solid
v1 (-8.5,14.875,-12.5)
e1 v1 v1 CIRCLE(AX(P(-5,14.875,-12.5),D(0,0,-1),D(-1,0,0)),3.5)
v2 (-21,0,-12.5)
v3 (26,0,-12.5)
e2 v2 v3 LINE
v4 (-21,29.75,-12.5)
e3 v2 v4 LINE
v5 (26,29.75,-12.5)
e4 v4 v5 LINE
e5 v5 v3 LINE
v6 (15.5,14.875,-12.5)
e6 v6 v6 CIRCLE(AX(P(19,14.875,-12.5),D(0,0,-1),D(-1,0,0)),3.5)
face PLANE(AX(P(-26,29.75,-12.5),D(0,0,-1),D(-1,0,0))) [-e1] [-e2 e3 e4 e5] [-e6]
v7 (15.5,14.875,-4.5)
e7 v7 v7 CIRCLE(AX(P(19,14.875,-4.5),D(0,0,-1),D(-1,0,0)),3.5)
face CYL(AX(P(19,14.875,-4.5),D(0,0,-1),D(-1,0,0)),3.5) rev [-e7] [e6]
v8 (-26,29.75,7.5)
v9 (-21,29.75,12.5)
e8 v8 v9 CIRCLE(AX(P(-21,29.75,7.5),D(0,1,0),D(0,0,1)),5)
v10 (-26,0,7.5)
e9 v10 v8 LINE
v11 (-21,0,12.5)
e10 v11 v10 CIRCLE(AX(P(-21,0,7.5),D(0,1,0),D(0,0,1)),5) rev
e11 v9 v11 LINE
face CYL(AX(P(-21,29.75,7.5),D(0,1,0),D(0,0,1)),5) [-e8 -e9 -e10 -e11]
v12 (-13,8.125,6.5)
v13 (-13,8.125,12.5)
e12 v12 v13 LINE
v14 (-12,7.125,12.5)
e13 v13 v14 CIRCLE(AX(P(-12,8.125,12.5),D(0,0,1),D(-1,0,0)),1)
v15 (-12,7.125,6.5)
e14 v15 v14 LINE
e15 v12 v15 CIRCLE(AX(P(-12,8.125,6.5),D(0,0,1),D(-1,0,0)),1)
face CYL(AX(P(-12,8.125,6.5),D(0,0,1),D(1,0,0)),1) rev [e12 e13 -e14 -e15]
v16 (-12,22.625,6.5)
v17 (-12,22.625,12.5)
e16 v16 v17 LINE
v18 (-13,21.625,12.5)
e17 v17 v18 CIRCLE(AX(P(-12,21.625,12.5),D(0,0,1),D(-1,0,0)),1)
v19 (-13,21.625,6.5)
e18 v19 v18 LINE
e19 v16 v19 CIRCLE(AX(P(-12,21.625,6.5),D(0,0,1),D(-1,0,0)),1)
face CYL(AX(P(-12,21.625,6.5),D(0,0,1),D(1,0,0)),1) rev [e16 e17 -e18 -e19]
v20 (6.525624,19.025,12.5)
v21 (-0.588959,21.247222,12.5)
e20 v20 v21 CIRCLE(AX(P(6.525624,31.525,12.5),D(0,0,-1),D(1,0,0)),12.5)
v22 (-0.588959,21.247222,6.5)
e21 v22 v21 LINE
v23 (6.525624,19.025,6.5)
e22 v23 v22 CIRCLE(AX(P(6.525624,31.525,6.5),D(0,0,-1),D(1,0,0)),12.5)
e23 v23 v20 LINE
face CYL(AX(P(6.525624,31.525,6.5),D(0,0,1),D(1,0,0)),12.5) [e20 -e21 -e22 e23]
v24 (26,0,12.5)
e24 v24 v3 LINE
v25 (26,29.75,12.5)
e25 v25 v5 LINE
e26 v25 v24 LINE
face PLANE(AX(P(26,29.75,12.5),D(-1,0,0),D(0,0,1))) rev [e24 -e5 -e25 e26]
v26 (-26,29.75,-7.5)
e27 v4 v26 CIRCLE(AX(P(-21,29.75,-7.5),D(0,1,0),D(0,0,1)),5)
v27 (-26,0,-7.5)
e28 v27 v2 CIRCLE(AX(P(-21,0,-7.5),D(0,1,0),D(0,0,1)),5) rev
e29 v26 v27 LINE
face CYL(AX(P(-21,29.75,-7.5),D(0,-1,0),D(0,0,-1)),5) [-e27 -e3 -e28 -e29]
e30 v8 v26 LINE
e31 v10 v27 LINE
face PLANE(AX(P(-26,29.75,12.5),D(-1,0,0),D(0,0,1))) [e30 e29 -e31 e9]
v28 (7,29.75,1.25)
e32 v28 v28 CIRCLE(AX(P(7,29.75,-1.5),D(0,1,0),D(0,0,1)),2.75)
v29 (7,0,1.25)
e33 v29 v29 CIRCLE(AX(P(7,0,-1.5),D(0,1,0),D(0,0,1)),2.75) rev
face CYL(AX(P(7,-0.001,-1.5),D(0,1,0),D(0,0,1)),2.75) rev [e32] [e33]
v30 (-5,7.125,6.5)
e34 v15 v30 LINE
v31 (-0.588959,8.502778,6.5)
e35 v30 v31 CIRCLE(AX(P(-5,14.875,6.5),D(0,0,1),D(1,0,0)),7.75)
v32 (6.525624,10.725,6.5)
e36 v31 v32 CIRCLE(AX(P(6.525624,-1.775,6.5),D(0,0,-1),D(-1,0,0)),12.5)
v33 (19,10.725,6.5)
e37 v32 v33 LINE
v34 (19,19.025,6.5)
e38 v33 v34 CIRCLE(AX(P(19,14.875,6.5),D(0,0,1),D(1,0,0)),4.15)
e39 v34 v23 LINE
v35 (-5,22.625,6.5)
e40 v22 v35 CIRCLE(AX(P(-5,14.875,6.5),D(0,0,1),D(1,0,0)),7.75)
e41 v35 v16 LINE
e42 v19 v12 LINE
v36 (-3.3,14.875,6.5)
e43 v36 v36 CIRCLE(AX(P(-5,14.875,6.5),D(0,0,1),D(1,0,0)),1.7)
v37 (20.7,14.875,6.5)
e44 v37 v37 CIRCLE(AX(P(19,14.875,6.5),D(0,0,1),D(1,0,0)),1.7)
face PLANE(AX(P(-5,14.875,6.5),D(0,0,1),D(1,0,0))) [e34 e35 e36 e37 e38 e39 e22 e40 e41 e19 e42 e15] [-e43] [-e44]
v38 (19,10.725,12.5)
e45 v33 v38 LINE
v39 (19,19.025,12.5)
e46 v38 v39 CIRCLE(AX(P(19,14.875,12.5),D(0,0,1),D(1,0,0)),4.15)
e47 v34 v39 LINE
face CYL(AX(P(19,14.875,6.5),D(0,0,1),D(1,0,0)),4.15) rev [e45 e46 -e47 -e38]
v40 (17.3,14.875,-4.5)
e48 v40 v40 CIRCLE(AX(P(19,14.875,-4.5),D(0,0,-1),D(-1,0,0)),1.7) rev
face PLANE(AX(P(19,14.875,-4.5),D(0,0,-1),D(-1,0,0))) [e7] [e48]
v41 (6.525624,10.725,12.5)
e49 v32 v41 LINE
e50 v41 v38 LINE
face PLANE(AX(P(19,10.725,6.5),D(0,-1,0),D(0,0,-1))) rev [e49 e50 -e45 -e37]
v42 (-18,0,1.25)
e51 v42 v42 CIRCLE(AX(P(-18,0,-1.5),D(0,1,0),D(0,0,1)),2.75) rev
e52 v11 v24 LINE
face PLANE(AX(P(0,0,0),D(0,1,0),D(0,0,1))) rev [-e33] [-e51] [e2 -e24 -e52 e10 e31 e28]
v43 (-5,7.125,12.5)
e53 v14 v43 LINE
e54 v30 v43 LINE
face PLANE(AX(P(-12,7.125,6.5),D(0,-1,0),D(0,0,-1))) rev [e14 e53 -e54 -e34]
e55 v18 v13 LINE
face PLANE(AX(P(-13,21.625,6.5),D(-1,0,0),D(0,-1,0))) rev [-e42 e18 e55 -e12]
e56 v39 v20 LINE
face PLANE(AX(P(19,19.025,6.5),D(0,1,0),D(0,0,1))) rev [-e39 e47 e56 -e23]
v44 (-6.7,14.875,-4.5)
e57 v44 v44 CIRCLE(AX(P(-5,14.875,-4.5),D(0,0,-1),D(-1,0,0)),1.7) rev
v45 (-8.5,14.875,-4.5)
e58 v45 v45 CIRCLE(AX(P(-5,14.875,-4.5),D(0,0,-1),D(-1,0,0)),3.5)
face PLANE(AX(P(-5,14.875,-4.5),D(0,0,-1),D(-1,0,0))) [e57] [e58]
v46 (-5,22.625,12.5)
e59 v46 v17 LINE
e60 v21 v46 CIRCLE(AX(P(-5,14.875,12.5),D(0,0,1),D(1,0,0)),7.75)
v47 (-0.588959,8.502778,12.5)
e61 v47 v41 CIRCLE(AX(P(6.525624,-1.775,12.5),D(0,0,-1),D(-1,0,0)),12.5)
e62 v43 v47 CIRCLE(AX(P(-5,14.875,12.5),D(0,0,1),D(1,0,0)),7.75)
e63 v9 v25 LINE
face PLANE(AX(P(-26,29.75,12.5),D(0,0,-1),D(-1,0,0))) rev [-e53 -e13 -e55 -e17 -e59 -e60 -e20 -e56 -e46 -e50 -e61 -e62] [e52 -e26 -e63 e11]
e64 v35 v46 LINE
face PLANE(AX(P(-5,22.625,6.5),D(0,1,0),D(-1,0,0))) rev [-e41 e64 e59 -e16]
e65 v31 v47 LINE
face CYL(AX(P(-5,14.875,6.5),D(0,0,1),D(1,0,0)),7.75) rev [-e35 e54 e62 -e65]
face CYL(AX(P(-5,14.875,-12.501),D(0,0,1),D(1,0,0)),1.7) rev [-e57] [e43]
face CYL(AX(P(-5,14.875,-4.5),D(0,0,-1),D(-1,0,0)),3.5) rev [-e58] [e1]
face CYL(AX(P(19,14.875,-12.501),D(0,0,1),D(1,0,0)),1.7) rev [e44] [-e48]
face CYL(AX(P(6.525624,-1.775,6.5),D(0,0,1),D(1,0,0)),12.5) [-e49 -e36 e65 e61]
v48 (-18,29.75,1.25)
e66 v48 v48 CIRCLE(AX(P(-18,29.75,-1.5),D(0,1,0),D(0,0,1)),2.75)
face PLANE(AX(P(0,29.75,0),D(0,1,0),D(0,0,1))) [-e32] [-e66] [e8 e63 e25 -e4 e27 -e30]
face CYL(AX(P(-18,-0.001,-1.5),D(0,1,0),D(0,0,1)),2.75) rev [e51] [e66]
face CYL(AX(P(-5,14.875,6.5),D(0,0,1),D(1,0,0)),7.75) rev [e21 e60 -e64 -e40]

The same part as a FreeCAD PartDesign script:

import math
import FreeCAD as App
import Part
import Sketcher
Q = App.Units.Quantity


def edges_at(feature, points):
    """Names of the edges that pass closest to the given points."""
    edges = feature.Shape.Edges
    near = lambda p: min(range(len(edges)), key=lambda i: edges[i].distToShape(Part.Vertex(*p))[0])
    return sorted({f"Edge{near(p) + 1}" for p in points})


def add_polygon(sketch, points):
    """Adds a closed chain of lines whose ends are joined by coincident constraints."""
    first, n = sketch.GeometryCount, len(points)
    for a, b in zip(points, points[1:] + points[:1]):
        sketch.addGeometry(Part.LineSegment(App.Vector(*a, 0), App.Vector(*b, 0)), False)
    for i in range(n):
        sketch.addConstraint(Sketcher.Constraint("Coincident", first + i, 2, first + (i + 1) % n, 1))

doc = App.newDocument("Part")
params = doc.addObject("Spreadsheet::Sheet", "Params")
for row, (alias, value) in enumerate([
    ("sketch1_width", "52 mm"),
    ("sketch1_height", "25 mm"),
    ("pad1_length", "29.75 mm"),
    ("sketch2_radius", "1 mm"),
    ("sketch2_radius2", "12.5 mm"),
    ("sketch2_width", "7 mm"),
    ("sketch2_radius3", "7.75 mm"),
    ("sketch2_radius4", "4.15 mm"),
    ("pocket1_length", "6 mm"),
    ("sketch3_diameter", "5.5 mm"),
    ("sketch4_diameter", "5.5 mm"),
    ("sketch5_diameter", "3.4 mm"),
    ("sketch6_diameter", "3.4 mm"),
    ("fillet_radius", "5 mm"),
    ("sketch7_diameter", "7 mm"),
    ("pocket6_length", "8 mm"),
], start=1):
    params.set(f"A{row}", alias)
    params.set(f"B{row}", "=" + value)
    params.setAlias(f"B{row}", alias)

body = doc.addObject("PartDesign::Body", "Body")

sketch1 = doc.addObject("Sketcher::SketchObject", "Sketch")
body.addObject(sketch1)
sketch1.AttachmentSupport = (doc.XZ_Plane, [""])
sketch1.MapMode = "FlatFace"
add_polygon(sketch1, [(-26, -12), (-26, 12), (26, 12), (26, -12)])
sketch1.addConstraint([
    Sketcher.Constraint("Vertical", 0),
    Sketcher.Constraint("Horizontal", 1),
    Sketcher.Constraint("Vertical", 2),
    Sketcher.Constraint("Horizontal", 3),
    Sketcher.Constraint("Symmetric", 0, 2, 2, 2, -1, 1),
    Sketcher.Constraint("DistanceX", 1, 1, 1, 2, Q("52 mm")),
    Sketcher.Constraint("DistanceY", 0, 1, 0, 2, Q("25 mm")),
])
sketch1.setExpression("Constraints[9]", "Params.sketch1_width")
sketch1.setExpression("Constraints[10]", "Params.sketch1_height")
pad1 = doc.addObject("PartDesign::Pad", "Pad")
body.addObject(pad1)
pad1.Profile = sketch1
pad1.setExpression("Length", "Params.pad1_length")
pad1.Reversed = True

sketch2 = doc.addObject("Sketcher::SketchObject", "Sketch001")
body.addObject(sketch2)
sketch2.AttachmentSupport = (doc.XY_Plane, [""])
sketch2.MapMode = "FlatFace"
sketch2.AttachmentOffset = App.Placement(App.Vector(0, 0, 12.5), App.Rotation())
sketch2.addGeometry([
    Part.LineSegment(App.Vector(19, 19, 0), App.Vector(6.5, 19, 0)),
    Part.ArcOfCircle(Part.Circle(App.Vector(6.5, 31.5, 0), App.Vector(0, 0, 1), 12.5), math.radians(-125), math.radians(-90)),
    Part.ArcOfCircle(Part.Circle(App.Vector(-5, 14.9, 0), App.Vector(0, 0, 1), 7.7), math.radians(55), math.radians(90)),
    Part.LineSegment(App.Vector(-5, 22.6, 0), App.Vector(-12, 22.6, 0)),
    Part.ArcOfCircle(Part.Circle(App.Vector(-12, 21.6, 0), App.Vector(0, 0, 1), 1), math.radians(90), math.radians(180)),
    Part.LineSegment(App.Vector(-13, 21.6, 0), App.Vector(-13, 8.1, 0)),
    Part.ArcOfCircle(Part.Circle(App.Vector(-12, 8.1, 0), App.Vector(0, 0, 1), 1), math.radians(-180), math.radians(-90)),
    Part.LineSegment(App.Vector(-12, 7.1, 0), App.Vector(-5, 7.1, 0)),
    Part.ArcOfCircle(Part.Circle(App.Vector(-5, 14.9, 0), App.Vector(0, 0, 1), 7.7), math.radians(-90), math.radians(-55)),
    Part.ArcOfCircle(Part.Circle(App.Vector(6.5, -1.8, 0), App.Vector(0, 0, 1), 12.5), math.radians(90), math.radians(125)),
    Part.LineSegment(App.Vector(6.5, 10.7, 0), App.Vector(19, 10.7, 0)),
    Part.ArcOfCircle(Part.Circle(App.Vector(19, 14.9, 0), App.Vector(0, 0, 1), 4.2), math.radians(-90), math.radians(90)),
], False)
sketch2.addConstraint([
    Sketcher.Constraint("Tangent", 0, 2, 1, 2),
    Sketcher.Constraint("Tangent", 1, 1, 2, 1),
    Sketcher.Constraint("Tangent", 2, 2, 3, 1),
    Sketcher.Constraint("Tangent", 3, 2, 4, 1),
    Sketcher.Constraint("Tangent", 4, 2, 5, 1),
    Sketcher.Constraint("Tangent", 5, 2, 6, 1),
    Sketcher.Constraint("Tangent", 6, 2, 7, 1),
    Sketcher.Constraint("Tangent", 7, 2, 8, 1),
    Sketcher.Constraint("Tangent", 8, 2, 9, 2),
    Sketcher.Constraint("Tangent", 9, 1, 10, 1),
    Sketcher.Constraint("Tangent", 10, 2, 11, 1),
    Sketcher.Constraint("Tangent", 11, 2, 0, 1),
    Sketcher.Constraint("Horizontal", 0),
    Sketcher.Constraint("Horizontal", 3),
    Sketcher.Constraint("Vertical", 5),
    Sketcher.Constraint("Horizontal", 7),
    Sketcher.Constraint("Horizontal", 10),
    Sketcher.Constraint("Coincident", 8, 3, 2, 3),
    Sketcher.Constraint("Equal", 4, 6),
    Sketcher.Constraint("Equal", 2, 8),
    Sketcher.Constraint("Equal", 1, 9),
    Sketcher.Constraint("Horizontal", 8, 3, 11, 3),
    Sketcher.Constraint("Radius", 4, Q("1 mm")),
    Sketcher.Constraint("Radius", 1, Q("12.5 mm")),
    Sketcher.Constraint("DistanceX", 3, 2, 3, 1, Q("7 mm")),
    Sketcher.Constraint("Radius", 2, Q("7.75 mm")),
    Sketcher.Constraint("Radius", 11, Q("4.15 mm")),
    Sketcher.Constraint("DistanceX", 2, 3, -1, 1, Q("5 mm")),
    Sketcher.Constraint("DistanceX", -1, 1, 11, 3, Q("19 mm")),
    Sketcher.Constraint("DistanceY", -1, 1, 1, 3, Q("31.525 mm")),
])
sketch2.setExpression("Constraints[22]", "Params.sketch2_radius")
sketch2.setExpression("Constraints[23]", "Params.sketch2_radius2")
sketch2.setExpression("Constraints[24]", "Params.sketch2_width")
sketch2.setExpression("Constraints[25]", "Params.sketch2_radius3")
sketch2.setExpression("Constraints[26]", "Params.sketch2_radius4")
pocket1 = doc.addObject("PartDesign::Pocket", "Pocket")
body.addObject(pocket1)
pocket1.Profile = sketch2
pocket1.setExpression("Length", "Params.pocket1_length")

sketch3 = doc.addObject("Sketcher::SketchObject", "Sketch002")
body.addObject(sketch3)
sketch3.AttachmentSupport = (doc.XZ_Plane, [""])
sketch3.MapMode = "FlatFace"
sketch3.AttachmentOffset = App.Placement(App.Vector(0, 0, -29.75), App.Rotation())
sketch3.addGeometry(Part.Circle(App.Vector(-18, -1.5, 0), App.Vector(0, 0, 1), 2.8), False)
sketch3.addConstraint([
    Sketcher.Constraint("Diameter", 0, Q("5.5 mm")),
    Sketcher.Constraint("DistanceX", 0, 3, -1, 1, Q("18 mm")),
    Sketcher.Constraint("DistanceY", 0, 3, -1, 1, Q("1.5 mm")),
])
sketch3.setExpression("Constraints[0]", "Params.sketch3_diameter")
pocket2 = doc.addObject("PartDesign::Pocket", "Pocket001")
body.addObject(pocket2)
pocket2.Profile = sketch3
pocket2.Type = "UpToFirst"
pocket2.Reversed = True

sketch4 = doc.addObject("Sketcher::SketchObject", "Sketch003")
body.addObject(sketch4)
sketch4.AttachmentSupport = (doc.XZ_Plane, [""])
sketch4.MapMode = "FlatFace"
sketch4.AttachmentOffset = App.Placement(App.Vector(0, 0, -29.75), App.Rotation())
sketch4.addGeometry(Part.Circle(App.Vector(7, -1.5, 0), App.Vector(0, 0, 1), 2.8), False)
sketch4.addConstraint([
    Sketcher.Constraint("Diameter", 0, Q("5.5 mm")),
    Sketcher.Constraint("DistanceX", -1, 1, 0, 3, Q("7 mm")),
    Sketcher.Constraint("DistanceY", 0, 3, -1, 1, Q("1.5 mm")),
])
sketch4.setExpression("Constraints[0]", "Params.sketch4_diameter")
pocket3 = doc.addObject("PartDesign::Pocket", "Pocket002")
body.addObject(pocket3)
pocket3.Profile = sketch4
pocket3.Type = "UpToFirst"
pocket3.Reversed = True

sketch5 = doc.addObject("Sketcher::SketchObject", "Sketch004")
body.addObject(sketch5)
sketch5.AttachmentSupport = (doc.XY_Plane, [""])
sketch5.MapMode = "FlatFace"
sketch5.AttachmentOffset = App.Placement(App.Vector(0, 0, 6.5), App.Rotation())
sketch5.addGeometry(Part.Circle(App.Vector(-5, 14.9, 0), App.Vector(0, 0, 1), 1.7), False)
sketch5.addConstraint([
    Sketcher.Constraint("Diameter", 0, Q("3.4 mm")),
    Sketcher.Constraint("DistanceX", 0, 3, -1, 1, Q("5 mm")),
    Sketcher.Constraint("DistanceY", -1, 1, 0, 3, Q("14.875 mm")),
])
sketch5.setExpression("Constraints[0]", "Params.sketch5_diameter")
pocket4 = doc.addObject("PartDesign::Pocket", "Pocket003")
body.addObject(pocket4)
pocket4.Profile = sketch5
pocket4.Type = "UpToFirst"

sketch6 = doc.addObject("Sketcher::SketchObject", "Sketch005")
body.addObject(sketch6)
sketch6.AttachmentSupport = (doc.XY_Plane, [""])
sketch6.MapMode = "FlatFace"
sketch6.AttachmentOffset = App.Placement(App.Vector(0, 0, 6.5), App.Rotation())
sketch6.addGeometry(Part.Circle(App.Vector(19, 14.9, 0), App.Vector(0, 0, 1), 1.7), False)
sketch6.addConstraint([
    Sketcher.Constraint("Diameter", 0, Q("3.4 mm")),
    Sketcher.Constraint("DistanceX", -1, 1, 0, 3, Q("19 mm")),
    Sketcher.Constraint("DistanceY", -1, 1, 0, 3, Q("14.875 mm")),
])
sketch6.setExpression("Constraints[0]", "Params.sketch6_diameter")
pocket5 = doc.addObject("PartDesign::Pocket", "Pocket004")
body.addObject(pocket5)
pocket5.Profile = sketch6
pocket5.Type = "UpToFirst"
doc.recompute()

fillet = doc.addObject("PartDesign::Fillet", "Fillet")
body.addObject(fillet)
fillet.Base = (pocket5, edges_at(pocket5, [(-26, 14.875, 12.5), (-26, 14.875, -12.5)]))
fillet.setExpression("Radius", "Params.fillet_radius")

sketch7 = doc.addObject("Sketcher::SketchObject", "Sketch006")
body.addObject(sketch7)
sketch7.AttachmentSupport = (doc.XY_Plane, [""])
sketch7.MapMode = "FlatFace"
sketch7.AttachmentOffset = App.Placement(App.Vector(0, 0, -12.5), App.Rotation())
sketch7.addGeometry([
    Part.Circle(App.Vector(19, 14.9, 0), App.Vector(0, 0, 1), 3.5),
    Part.Circle(App.Vector(-5, 14.9, 0), App.Vector(0, 0, 1), 3.5),
], False)
sketch7.addConstraint([
    Sketcher.Constraint("Equal", 0, 1),
    Sketcher.Constraint("Horizontal", 0, 3, 1, 3),
    Sketcher.Constraint("Diameter", 0, Q("7 mm")),
    Sketcher.Constraint("DistanceX", -1, 1, 0, 3, Q("19 mm")),
    Sketcher.Constraint("DistanceX", 1, 3, -1, 1, Q("5 mm")),
    Sketcher.Constraint("DistanceY", -1, 1, 0, 3, Q("14.875 mm")),
])
sketch7.setExpression("Constraints[2]", "Params.sketch7_diameter")
pocket6 = doc.addObject("PartDesign::Pocket", "Pocket005")
body.addObject(pocket6)
pocket6.Profile = sketch7
pocket6.setExpression("Length", "Params.pocket6_length")
pocket6.Reversed = True

doc.recompute()
